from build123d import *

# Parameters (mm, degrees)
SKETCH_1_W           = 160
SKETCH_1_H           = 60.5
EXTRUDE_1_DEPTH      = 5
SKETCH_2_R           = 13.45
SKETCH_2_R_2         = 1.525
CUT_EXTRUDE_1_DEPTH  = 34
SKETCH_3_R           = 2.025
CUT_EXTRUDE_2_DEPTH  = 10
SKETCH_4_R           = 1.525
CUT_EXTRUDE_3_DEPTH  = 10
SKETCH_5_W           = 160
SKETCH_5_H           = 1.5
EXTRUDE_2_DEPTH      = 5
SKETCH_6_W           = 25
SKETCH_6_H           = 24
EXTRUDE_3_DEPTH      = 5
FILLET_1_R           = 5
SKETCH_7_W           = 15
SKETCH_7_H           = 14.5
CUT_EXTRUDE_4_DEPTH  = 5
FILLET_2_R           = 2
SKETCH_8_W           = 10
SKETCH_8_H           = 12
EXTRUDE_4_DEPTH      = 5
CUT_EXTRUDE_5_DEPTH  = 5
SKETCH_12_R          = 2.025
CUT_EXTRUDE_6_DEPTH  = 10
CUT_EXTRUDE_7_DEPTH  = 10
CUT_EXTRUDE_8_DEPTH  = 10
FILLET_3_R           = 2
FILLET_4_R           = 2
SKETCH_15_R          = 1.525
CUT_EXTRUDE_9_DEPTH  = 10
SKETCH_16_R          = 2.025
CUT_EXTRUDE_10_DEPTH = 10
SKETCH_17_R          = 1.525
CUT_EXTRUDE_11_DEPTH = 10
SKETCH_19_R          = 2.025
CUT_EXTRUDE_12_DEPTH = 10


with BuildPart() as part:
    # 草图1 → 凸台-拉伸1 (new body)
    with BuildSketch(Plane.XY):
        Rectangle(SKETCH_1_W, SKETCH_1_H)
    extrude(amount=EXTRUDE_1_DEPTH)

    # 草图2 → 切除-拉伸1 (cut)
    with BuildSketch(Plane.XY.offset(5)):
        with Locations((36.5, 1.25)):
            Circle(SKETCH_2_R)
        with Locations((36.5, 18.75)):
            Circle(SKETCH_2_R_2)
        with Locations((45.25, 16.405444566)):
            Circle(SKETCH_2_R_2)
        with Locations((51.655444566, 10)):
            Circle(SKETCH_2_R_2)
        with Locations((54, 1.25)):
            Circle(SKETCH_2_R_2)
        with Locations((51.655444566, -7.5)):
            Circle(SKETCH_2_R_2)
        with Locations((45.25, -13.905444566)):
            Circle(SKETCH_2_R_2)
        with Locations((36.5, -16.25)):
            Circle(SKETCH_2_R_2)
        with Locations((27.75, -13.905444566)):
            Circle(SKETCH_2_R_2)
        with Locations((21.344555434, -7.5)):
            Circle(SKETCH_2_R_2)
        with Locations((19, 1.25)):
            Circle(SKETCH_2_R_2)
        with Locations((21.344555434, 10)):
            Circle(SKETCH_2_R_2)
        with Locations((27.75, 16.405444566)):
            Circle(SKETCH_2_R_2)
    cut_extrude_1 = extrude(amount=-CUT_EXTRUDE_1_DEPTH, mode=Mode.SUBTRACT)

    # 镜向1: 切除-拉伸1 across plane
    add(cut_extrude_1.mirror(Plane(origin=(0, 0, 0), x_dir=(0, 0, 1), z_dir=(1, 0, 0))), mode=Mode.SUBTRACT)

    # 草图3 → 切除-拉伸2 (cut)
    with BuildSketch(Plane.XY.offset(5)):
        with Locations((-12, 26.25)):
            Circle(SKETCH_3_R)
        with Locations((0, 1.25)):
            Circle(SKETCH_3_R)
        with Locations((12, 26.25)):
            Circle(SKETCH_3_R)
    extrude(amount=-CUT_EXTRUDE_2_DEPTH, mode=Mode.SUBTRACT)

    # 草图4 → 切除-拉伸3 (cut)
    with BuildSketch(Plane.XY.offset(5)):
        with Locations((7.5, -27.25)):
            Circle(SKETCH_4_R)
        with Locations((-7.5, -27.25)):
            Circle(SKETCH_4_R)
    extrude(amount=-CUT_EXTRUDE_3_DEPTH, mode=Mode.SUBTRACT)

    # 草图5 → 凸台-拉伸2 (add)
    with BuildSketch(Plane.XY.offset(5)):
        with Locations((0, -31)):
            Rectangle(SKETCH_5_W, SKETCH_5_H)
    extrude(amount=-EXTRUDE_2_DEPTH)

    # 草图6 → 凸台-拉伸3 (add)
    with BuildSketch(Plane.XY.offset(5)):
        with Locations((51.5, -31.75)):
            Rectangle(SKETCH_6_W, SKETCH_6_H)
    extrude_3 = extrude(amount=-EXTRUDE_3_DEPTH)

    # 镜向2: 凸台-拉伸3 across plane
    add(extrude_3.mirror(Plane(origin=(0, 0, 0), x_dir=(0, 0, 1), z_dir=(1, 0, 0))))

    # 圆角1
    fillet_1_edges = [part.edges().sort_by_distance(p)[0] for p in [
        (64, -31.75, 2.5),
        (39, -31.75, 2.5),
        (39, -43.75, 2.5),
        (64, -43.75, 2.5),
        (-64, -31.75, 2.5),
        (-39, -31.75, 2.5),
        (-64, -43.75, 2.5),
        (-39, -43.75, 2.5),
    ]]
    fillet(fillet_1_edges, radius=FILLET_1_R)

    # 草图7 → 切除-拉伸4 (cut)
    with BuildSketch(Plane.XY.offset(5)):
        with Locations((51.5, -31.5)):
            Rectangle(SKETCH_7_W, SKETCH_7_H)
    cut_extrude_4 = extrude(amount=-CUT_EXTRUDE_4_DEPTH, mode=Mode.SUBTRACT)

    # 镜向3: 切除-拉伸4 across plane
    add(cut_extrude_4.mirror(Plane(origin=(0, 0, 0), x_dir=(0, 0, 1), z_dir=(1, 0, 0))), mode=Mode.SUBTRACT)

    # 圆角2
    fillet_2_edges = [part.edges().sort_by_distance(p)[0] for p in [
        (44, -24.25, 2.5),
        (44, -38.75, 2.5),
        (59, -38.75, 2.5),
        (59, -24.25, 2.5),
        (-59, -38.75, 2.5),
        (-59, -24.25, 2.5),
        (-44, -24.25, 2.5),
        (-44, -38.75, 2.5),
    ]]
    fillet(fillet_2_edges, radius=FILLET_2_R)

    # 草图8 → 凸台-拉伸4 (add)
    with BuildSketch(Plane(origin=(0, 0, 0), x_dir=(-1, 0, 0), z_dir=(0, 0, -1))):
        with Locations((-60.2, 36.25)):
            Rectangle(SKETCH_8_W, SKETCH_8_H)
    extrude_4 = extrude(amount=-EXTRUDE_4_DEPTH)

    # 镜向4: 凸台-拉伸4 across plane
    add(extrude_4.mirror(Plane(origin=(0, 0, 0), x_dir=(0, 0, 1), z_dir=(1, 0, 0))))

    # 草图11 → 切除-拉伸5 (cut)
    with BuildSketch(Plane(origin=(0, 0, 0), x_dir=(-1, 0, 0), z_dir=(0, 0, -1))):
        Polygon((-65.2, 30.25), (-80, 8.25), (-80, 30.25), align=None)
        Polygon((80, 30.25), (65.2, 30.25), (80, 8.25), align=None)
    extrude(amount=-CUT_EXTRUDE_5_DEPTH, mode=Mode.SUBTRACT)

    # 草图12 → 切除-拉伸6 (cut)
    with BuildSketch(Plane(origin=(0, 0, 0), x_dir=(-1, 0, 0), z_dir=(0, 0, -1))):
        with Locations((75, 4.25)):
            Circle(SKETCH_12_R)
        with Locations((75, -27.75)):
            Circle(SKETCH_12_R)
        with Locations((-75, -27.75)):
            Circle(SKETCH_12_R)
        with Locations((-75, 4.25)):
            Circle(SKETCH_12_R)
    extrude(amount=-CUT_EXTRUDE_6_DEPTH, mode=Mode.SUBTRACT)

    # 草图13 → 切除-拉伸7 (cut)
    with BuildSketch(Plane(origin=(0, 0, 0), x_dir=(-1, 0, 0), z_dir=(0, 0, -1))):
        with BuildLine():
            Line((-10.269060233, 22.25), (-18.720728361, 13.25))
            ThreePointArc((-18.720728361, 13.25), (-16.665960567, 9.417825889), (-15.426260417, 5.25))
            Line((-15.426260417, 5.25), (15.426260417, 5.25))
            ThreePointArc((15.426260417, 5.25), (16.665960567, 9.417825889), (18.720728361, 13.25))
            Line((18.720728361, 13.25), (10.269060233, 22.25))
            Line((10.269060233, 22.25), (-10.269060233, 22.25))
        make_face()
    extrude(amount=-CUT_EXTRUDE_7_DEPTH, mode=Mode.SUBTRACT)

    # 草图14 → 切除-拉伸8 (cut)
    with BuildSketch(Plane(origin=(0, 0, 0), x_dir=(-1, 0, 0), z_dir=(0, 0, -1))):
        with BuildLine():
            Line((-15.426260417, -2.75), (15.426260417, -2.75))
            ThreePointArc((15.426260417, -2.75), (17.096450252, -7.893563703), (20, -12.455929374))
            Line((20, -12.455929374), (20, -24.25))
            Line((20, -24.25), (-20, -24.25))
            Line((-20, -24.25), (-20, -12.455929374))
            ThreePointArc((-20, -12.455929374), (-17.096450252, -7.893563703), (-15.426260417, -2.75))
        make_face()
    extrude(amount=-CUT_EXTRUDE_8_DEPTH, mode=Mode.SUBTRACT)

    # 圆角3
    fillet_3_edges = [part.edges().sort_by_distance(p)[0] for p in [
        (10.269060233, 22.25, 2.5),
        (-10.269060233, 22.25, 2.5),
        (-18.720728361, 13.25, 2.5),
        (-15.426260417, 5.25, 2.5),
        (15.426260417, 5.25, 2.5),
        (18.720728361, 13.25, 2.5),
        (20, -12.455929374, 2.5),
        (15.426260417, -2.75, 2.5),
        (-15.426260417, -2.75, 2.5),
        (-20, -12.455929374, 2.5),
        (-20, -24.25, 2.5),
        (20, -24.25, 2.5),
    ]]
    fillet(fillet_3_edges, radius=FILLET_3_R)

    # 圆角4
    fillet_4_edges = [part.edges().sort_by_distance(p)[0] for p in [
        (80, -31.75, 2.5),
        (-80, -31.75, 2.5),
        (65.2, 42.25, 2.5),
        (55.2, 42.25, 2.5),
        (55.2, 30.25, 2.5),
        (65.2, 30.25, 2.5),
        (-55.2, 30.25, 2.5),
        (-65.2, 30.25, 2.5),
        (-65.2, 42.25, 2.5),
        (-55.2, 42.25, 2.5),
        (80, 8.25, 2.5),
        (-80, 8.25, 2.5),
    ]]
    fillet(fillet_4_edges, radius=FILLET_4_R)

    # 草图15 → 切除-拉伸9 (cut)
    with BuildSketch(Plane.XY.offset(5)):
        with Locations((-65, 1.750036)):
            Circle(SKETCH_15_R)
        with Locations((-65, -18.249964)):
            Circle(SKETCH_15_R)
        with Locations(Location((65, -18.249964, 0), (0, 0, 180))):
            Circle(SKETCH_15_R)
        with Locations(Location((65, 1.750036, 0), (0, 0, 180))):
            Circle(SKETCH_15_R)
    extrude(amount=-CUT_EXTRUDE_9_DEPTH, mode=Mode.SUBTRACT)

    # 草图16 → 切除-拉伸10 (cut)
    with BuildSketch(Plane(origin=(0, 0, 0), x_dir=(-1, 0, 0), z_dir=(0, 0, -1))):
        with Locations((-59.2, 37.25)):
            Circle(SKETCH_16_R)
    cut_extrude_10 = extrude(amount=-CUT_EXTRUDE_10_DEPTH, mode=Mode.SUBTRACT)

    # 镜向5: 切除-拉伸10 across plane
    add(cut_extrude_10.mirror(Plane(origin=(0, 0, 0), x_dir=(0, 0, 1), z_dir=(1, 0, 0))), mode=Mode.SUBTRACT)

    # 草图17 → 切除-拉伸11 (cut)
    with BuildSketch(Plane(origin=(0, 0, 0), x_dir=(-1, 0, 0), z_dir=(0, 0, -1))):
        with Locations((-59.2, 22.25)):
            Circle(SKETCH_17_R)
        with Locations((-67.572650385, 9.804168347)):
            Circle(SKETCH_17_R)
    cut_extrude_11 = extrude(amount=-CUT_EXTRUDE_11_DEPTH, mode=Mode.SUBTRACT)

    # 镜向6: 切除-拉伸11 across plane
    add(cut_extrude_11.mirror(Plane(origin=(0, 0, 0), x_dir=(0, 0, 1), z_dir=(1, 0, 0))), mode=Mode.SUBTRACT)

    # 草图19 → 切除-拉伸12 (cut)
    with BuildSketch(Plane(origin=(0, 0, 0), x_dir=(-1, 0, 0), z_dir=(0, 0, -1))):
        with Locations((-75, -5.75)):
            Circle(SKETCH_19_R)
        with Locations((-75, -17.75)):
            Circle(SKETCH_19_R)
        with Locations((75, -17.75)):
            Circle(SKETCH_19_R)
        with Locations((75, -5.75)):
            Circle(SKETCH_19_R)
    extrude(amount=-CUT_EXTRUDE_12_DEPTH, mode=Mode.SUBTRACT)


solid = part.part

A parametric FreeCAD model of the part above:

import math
import FreeCAD as App
import Part
import Sketcher
from FreeCAD import Vector


def edges_at(feature, points):
    """Names of the edges that pass closest to the given points."""
    edges = feature.Shape.Edges
    near = lambda p: min(range(len(edges)), key=lambda i: edges[i].distToShape(Part.Vertex(*p))[0])
    return sorted({f"Edge{near(p) + 1}" for p in points})


def add_polygon(sketch, points):
    """Adds a closed chain of lines whose ends are joined by coincident constraints."""
    first, n = sketch.GeometryCount, len(points)
    for a, b in zip(points, points[1:] + points[:1]):
        sketch.addGeometry(Part.LineSegment(App.Vector(*a, 0), App.Vector(*b, 0)), False)
    for i in range(n):
        sketch.addConstraint(Sketcher.Constraint("Coincident", first + i, 2, first + (i + 1) % n, 1))

doc = App.newDocument("Part")
body = doc.addObject("PartDesign::Body", "Body")

# Sketch on XY plane
sketch1 = body.newObject("Sketcher::SketchObject", "Sketch")
sketch1.AttachmentSupport = (doc.getObject("XY_Plane"), [""])
sketch1.MapMode = "FlatFace"
add_polygon(sketch1, [(-80, 30), (-80, -30), (80, -30), (80, 30)])  # lines 0-3
sketch1.addConstraint([
    Sketcher.Constraint("Vertical", 0),
    Sketcher.Constraint("Horizontal", 1),
    Sketcher.Constraint("Vertical", 2),
    Sketcher.Constraint("Horizontal", 3),
    Sketcher.Constraint("Symmetric", 0, 2, 2, 2, -1, 1),
    Sketcher.Constraint("DistanceX", 1, 1, 1, 2, 160.0),
    Sketcher.Constraint("DistanceY", 0, 2, 0, 1, 60.5),
])
pad1 = body.newObject("PartDesign::Pad", "Pad")
pad1.Profile = sketch1
pad1.Length = 5

# Sketch on XY plane
sketch2 = body.newObject("Sketcher::SketchObject", "Sketch001")
sketch2.AttachmentSupport = (doc.getObject("XY_Plane"), [""])
sketch2.MapMode = "FlatFace"
sketch2.AttachmentOffset = App.Placement(Vector(0, 0, 5), App.Rotation())
sketch2.addGeometry([
    Part.Circle(Vector(36.5, 1.2, 0), Vector(0, 0, 1), 13.4),  # 0
    Part.Circle(Vector(36.5, 18.8, 0), Vector(0, 0, 1), 1.5),  # 1
    Part.Circle(Vector(45.2, 16.4, 0), Vector(0, 0, 1), 1.5),  # 2
    Part.Circle(Vector(51.7, 10, 0), Vector(0, 0, 1), 1.5),  # 3
    Part.Circle(Vector(54, 1.2, 0), Vector(0, 0, 1), 1.5),  # 4
    Part.Circle(Vector(51.7, -7.5, 0), Vector(0, 0, 1), 1.5),  # 5
    Part.Circle(Vector(45.2, -13.9, 0), Vector(0, 0, 1), 1.5),  # 6
    Part.Circle(Vector(36.5, -16.2, 0), Vector(0, 0, 1), 1.5),  # 7
    Part.Circle(Vector(27.8, -13.9, 0), Vector(0, 0, 1), 1.5),  # 8
    Part.Circle(Vector(21.3, -7.5, 0), Vector(0, 0, 1), 1.5),  # 9
    Part.Circle(Vector(19, 1.2, 0), Vector(0, 0, 1), 1.5),  # 10
    Part.Circle(Vector(21.3, 10, 0), Vector(0, 0, 1), 1.5),  # 11
    Part.Circle(Vector(27.8, 16.4, 0), Vector(0, 0, 1), 1.5),  # 12
], False)
sketch2.addConstraint([
    Sketcher.Constraint("Equal", 1, 2),
    Sketcher.Constraint("Equal", 2, 3),
    Sketcher.Constraint("Equal", 3, 4),
    Sketcher.Constraint("Equal", 4, 5),
    Sketcher.Constraint("Equal", 5, 6),
    Sketcher.Constraint("Equal", 6, 7),
    Sketcher.Constraint("Equal", 7, 8),
    Sketcher.Constraint("Equal", 8, 9),
    Sketcher.Constraint("Equal", 9, 10),
    Sketcher.Constraint("Equal", 10, 11),
    Sketcher.Constraint("Equal", 11, 12),
    Sketcher.Constraint("Horizontal", 0, 3, 4, 3),
    Sketcher.Constraint("Horizontal", 6, 3, 8, 3),
    Sketcher.Constraint("Horizontal", 5, 3, 9, 3),
    Sketcher.Constraint("Horizontal", 4, 3, 10, 3),
    Sketcher.Constraint("Horizontal", 3, 3, 11, 3),
    Sketcher.Constraint("Horizontal", 2, 3, 12, 3),
    Sketcher.Constraint("Vertical", 0, 3, 1, 3),
    Sketcher.Constraint("Vertical", 3, 3, 5, 3),
    Sketcher.Constraint("Vertical", 2, 3, 6, 3),
    Sketcher.Constraint("Vertical", 1, 3, 7, 3),
    Sketcher.Constraint("Vertical", 9, 3, 11, 3),
    Sketcher.Constraint("Vertical", 8, 3, 12, 3),
    Sketcher.Constraint("Diameter", 0, 26.9),
    Sketcher.Constraint("Diameter", 1, 3.05),
    Sketcher.Constraint("DistanceY", -1, 1, 3, 3, 10.0),
    Sketcher.Constraint("DistanceX", -1, 1, 4, 3, 54.0),
    Sketcher.Constraint("DistanceX", -1, 1, 10, 3, 19.0),
    Sketcher.Constraint("DistanceX", -1, 1, 0, 3, 36.5),
    Sketcher.Constraint("DistanceY", 5, 3, -1, 1, 7.5),
    Sketcher.Constraint("DistanceY", 0, 3, 1, 3, 17.5),
    Sketcher.Constraint("DistanceY", 7, 3, 0, 3, 17.5),
    Sketcher.Constraint("DistanceX", 8, 3, 6, 3, 17.5),
    Sketcher.Constraint("DistanceY", -1, 1, 0, 3, 1.25),
    Sketcher.Constraint("DistanceX", -1, 1, 2, 3, 45.25),
    Sketcher.Constraint("DistanceY", 6, 3, 2, 3, 30.310889),
    Sketcher.Constraint("DistanceX", 9, 3, 5, 3, 30.310889),
    Sketcher.Constraint("DistanceY", -1, 1, 2, 3, 16.405445),
    Sketcher.Constraint("DistanceX", -1, 1, 3, 3, 51.655445),
])
pocket1 = body.newObject("PartDesign::Pocket", "Pocket")
pocket1.Profile = sketch2
pocket1.Length = 34
doc.recompute()

mirrored = body.newObject("PartDesign::Mirrored", "Mirrored")
mirrored.Originals = [pocket1]
mirrored.MirrorPlane = (doc.getObject("YZ_Plane"), [""])
body.Tip = mirrored

# Sketch on XY plane
sketch3 = body.newObject("Sketcher::SketchObject", "Sketch002")
sketch3.AttachmentSupport = (doc.getObject("XY_Plane"), [""])
sketch3.MapMode = "FlatFace"
sketch3.AttachmentOffset = App.Placement(Vector(0, 0, 5), App.Rotation())
sketch3.addGeometry([
    Part.Circle(Vector(-12, 26.2, 0), Vector(0, 0, 1), 2),
    Part.Circle(Vector(0, 1.2, 0), Vector(0, 0, 1), 2),
    Part.Circle(Vector(12, 26.2, 0), Vector(0, 0, 1), 2),
], False)
sketch3.addConstraint([
    Sketcher.Constraint("Equal", 0, 1),
    Sketcher.Constraint("Equal", 1, 2),
    Sketcher.Constraint("Symmetric", 0, 3, 2, 3, -2),
    Sketcher.Constraint("PointOnObject", 1, 3, -2),
    Sketcher.Constraint("Diameter", 0, 4.05),
    Sketcher.Constraint("DistanceX", 0, 3, -1, 1, 12.0),
    Sketcher.Constraint("DistanceY", 1, 3, 0, 3, 25.0),
    Sketcher.Constraint("DistanceY", -1, 1, 0, 3, 26.25),
])
pocket2 = body.newObject("PartDesign::Pocket", "Pocket001")
pocket2.Profile = sketch3
pocket2.Length = 10

# Sketch on XY plane
sketch4 = body.newObject("Sketcher::SketchObject", "Sketch003")
sketch4.AttachmentSupport = (doc.getObject("XY_Plane"), [""])
sketch4.MapMode = "FlatFace"
sketch4.AttachmentOffset = App.Placement(Vector(0, 0, 5), App.Rotation())
sketch4.addGeometry([
    Part.Circle(Vector(7.5, -27.2, 0), Vector(0, 0, 1), 1.5),
    Part.Circle(Vector(-7.5, -27.2, 0), Vector(0, 0, 1), 1.5),
], False)
sketch4.addConstraint([
    Sketcher.Constraint("Equal", 0, 1),
    Sketcher.Constraint("Symmetric", 0, 3, 1, 3, -2),
    Sketcher.Constraint("Diameter", 0, 3.05),
    Sketcher.Constraint("DistanceX", 1, 3, 0, 3, 15.0),
    Sketcher.Constraint("DistanceY", 0, 3, -1, 1, 27.25),
])
pocket3 = body.newObject("PartDesign::Pocket", "Pocket002")
pocket3.Profile = sketch4
pocket3.Length = 10

# Sketch on XY plane
sketch5 = body.newObject("Sketcher::SketchObject", "Sketch004")
sketch5.AttachmentSupport = (doc.getObject("XY_Plane"), [""])
sketch5.MapMode = "FlatFace"
sketch5.AttachmentOffset = App.Placement(Vector(0, 0, 5), App.Rotation())
add_polygon(sketch5, [(-80, -30.2), (-80, -31.8), (80, -31.8), (80, -30.2)])  # lines 0-3
sketch5.addConstraint([
    Sketcher.Constraint("Vertical", 0),
    Sketcher.Constraint("Horizontal", 1),
    Sketcher.Constraint("Vertical", 2),
    Sketcher.Constraint("Horizontal", 3),
    Sketcher.Constraint("DistanceX", 1, 1, 1, 2, 160.0),
    Sketcher.Constraint("DistanceY", 0, 2, 0, 1, 1.5),
    Sketcher.Constraint("DistanceX", 0, 2, -1, 1, 80.0),
    Sketcher.Constraint("DistanceY", 0, 2, -1, 1, 31.75),
])
pad2 = body.newObject("PartDesign::Pad", "Pad001")
pad2.Profile = sketch5
pad2.Length = 5
pad2.Reversed = True

# Sketch on XY plane
sketch6 = body.newObject("Sketcher::SketchObject", "Sketch005")
sketch6.AttachmentSupport = (doc.getObject("XY_Plane"), [""])
sketch6.MapMode = "FlatFace"
sketch6.AttachmentOffset = App.Placement(Vector(0, 0, 5), App.Rotation())
add_polygon(sketch6, [(39, -20), (39, -44), (64, -44), (64, -20)])  # lines 0-3
sketch6.addConstraint([
    Sketcher.Constraint("Vertical", 0),
    Sketcher.Constraint("Horizontal", 1),
    Sketcher.Constraint("Vertical", 2),
    Sketcher.Constraint("Horizontal", 3),
    Sketcher.Constraint("DistanceX", 1, 1, 1, 2, 25.0),
    Sketcher.Constraint("DistanceY", 0, 2, 0, 1, 24.0),
    Sketcher.Constraint("DistanceX", -1, 1, 0, 2, 39.0),
    Sketcher.Constraint("DistanceY", 0, 2, -1, 1, 43.75),
])
pad3 = body.newObject("PartDesign::Pad", "Pad002")
pad3.Profile = sketch6
pad3.Length = 5
pad3.Reversed = True
doc.recompute()

mirrored2 = body.newObject("PartDesign::Mirrored", "Mirrored001")
mirrored2.Originals = [pad3]
mirrored2.MirrorPlane = (doc.getObject("YZ_Plane"), [""])
body.Tip = mirrored2
doc.recompute()

fillet = body.newObject("PartDesign::Fillet", "Fillet")
fillet.Base = (mirrored2, edges_at(mirrored2, [
    (64, -31.75, 2.5),
    (39, -31.75, 2.5),
    (39, -43.75, 2.5),
    (64, -43.75, 2.5),
    (-64, -31.75, 2.5),
    (-39, -31.75, 2.5),
    (-64, -43.75, 2.5),
    (-39, -43.75, 2.5),
]))
fillet.Radius = 5

# Sketch on XY plane
sketch7 = body.newObject("Sketcher::SketchObject", "Sketch006")
sketch7.AttachmentSupport = (doc.getObject("XY_Plane"), [""])
sketch7.MapMode = "FlatFace"
sketch7.AttachmentOffset = App.Placement(Vector(0, 0, 5), App.Rotation())
add_polygon(sketch7, [(44, -24), (44, -39), (59, -39), (59, -24)])  # lines 0-3
sketch7.addConstraint([
    Sketcher.Constraint("Vertical", 0),
    Sketcher.Constraint("Horizontal", 1),
    Sketcher.Constraint("Vertical", 2),
    Sketcher.Constraint("Horizontal", 3),
    Sketcher.Constraint("DistanceX", 1, 1, 1, 2, 15.0),
    Sketcher.Constraint("DistanceY", 0, 2, 0, 1, 14.5),
    Sketcher.Constraint("DistanceX", -1, 1, 0, 2, 44.0),
    Sketcher.Constraint("DistanceY", 0, 2, -1, 1, 38.75),
])
pocket4 = body.newObject("PartDesign::Pocket", "Pocket003")
pocket4.Profile = sketch7
pocket4.Length = 5
doc.recompute()

mirrored3 = body.newObject("PartDesign::Mirrored", "Mirrored002")
mirrored3.Originals = [pocket4]
mirrored3.MirrorPlane = (doc.getObject("YZ_Plane"), [""])
body.Tip = mirrored3
doc.recompute()

fillet2 = body.newObject("PartDesign::Fillet", "Fillet001")
fillet2.Base = (mirrored3, edges_at(mirrored3, [
    (44, -24.25, 2.5),
    (44, -38.75, 2.5),
    (59, -38.75, 2.5),
    (59, -24.25, 2.5),
    (-59, -38.75, 2.5),
    (-59, -24.25, 2.5),
    (-44, -24.25, 2.5),
    (-44, -38.75, 2.5),
]))
fillet2.Radius = 2

# Sketch on XY plane
sketch8 = body.newObject("Sketcher::SketchObject", "Sketch007")
sketch8.AttachmentSupport = (doc.getObject("XY_Plane"), [""])
sketch8.MapMode = "FlatFace"
add_polygon(sketch8, [(65, 42), (65, 30), (55, 30), (55, 42)])  # lines 0-3
sketch8.addConstraint([
    Sketcher.Constraint("Vertical", 0),
    Sketcher.Constraint("Horizontal", 1),
    Sketcher.Constraint("Vertical", 2),
    Sketcher.Constraint("Horizontal", 3),
    Sketcher.Constraint("DistanceX", 1, 2, 1, 1, 10.0),
    Sketcher.Constraint("DistanceY", 0, 2, 0, 1, 12.0),
    Sketcher.Constraint("DistanceX", -1, 1, 0, 2, 65.2),
    Sketcher.Constraint("DistanceY", -1, 1, 0, 2, 30.25),
])
pad4 = body.newObject("PartDesign::Pad", "Pad003")
pad4.Profile = sketch8
pad4.Length = 5
doc.recompute()

mirrored4 = body.newObject("PartDesign::Mirrored", "Mirrored003")
mirrored4.Originals = [pad4]
mirrored4.MirrorPlane = (doc.getObject("YZ_Plane"), [""])
body.Tip = mirrored4

# Sketch on XY plane
sketch9 = body.newObject("Sketcher::SketchObject", "Sketch008")
sketch9.AttachmentSupport = (doc.getObject("XY_Plane"), [""])
sketch9.MapMode = "FlatFace"
add_polygon(sketch9, [(80, 8), (65, 30), (80, 30)])  # lines 0-2
add_polygon(sketch9, [(-80, 30), (-65, 30), (-80, 8)])  # lines 3-5
sketch9.addConstraint([
    Sketcher.Constraint("Horizontal", 1),
    Sketcher.Constraint("Vertical", 2),
    Sketcher.Constraint("Horizontal", 3),
    Sketcher.Constraint("Vertical", 5),
    Sketcher.Constraint("Symmetric", 0, 2, 3, 2, -2),
    Sketcher.Constraint("Symmetric", 2, 2, 4, 2, -2),
    Sketcher.Constraint("DistanceY", 2, 2, 2, 1, 22.0),
    Sketcher.Constraint("DistanceX", 1, 1, 1, 2, 14.8),
    Sketcher.Constraint("DistanceX", -1, 1, 1, 2, 80.0),
    Sketcher.Constraint("DistanceY", -1, 1, 0, 2, 30.25),
])
pocket5 = body.newObject("PartDesign::Pocket", "Pocket004")
pocket5.Profile = sketch9
pocket5.Length = 5
pocket5.Reversed = True

# Sketch on XY plane
sketch10 = body.newObject("Sketcher::SketchObject", "Sketch009")
sketch10.AttachmentSupport = (doc.getObject("XY_Plane"), [""])
sketch10.MapMode = "FlatFace"
sketch10.addGeometry([
    Part.Circle(Vector(-75, 4.2, 0), Vector(0, 0, 1), 2),
    Part.Circle(Vector(-75, -27.8, 0), Vector(0, 0, 1), 2),
    Part.Circle(Vector(75, -27.8, 0), Vector(0, 0, 1), 2),
    Part.Circle(Vector(75, 4.2, 0), Vector(0, 0, 1), 2),
], False)
sketch10.addConstraint([
    Sketcher.Constraint("Equal", 0, 1),
    Sketcher.Constraint("Equal", 1, 2),
    Sketcher.Constraint("Equal", 2, 3),
    Sketcher.Constraint("Symmetric", 1, 3, 2, 3, -2),
    Sketcher.Constraint("Symmetric", 0, 3, 3, 3, -2),
    Sketcher.Constraint("Vertical", 0, 3, 1, 3),
    Sketcher.Constraint("Diameter", 0, 4.05),
    Sketcher.Constraint("DistanceX", 0, 3, -1, 1, 75.0),
    Sketcher.Constraint("DistanceY", 1, 3, 0, 3, 32.0),
    Sketcher.Constraint("DistanceY", -1, 1, 0, 3, 4.25),
])
pocket6 = body.newObject("PartDesign::Pocket", "Pocket005")
pocket6.Profile = sketch10
pocket6.Length = 10
pocket6.Reversed = True

# Sketch on XY plane
sketch11 = body.newObject("Sketcher::SketchObject", "Sketch010")
sketch11.AttachmentSupport = (doc.getObject("XY_Plane"), [""])
sketch11.MapMode = "FlatFace"
sketch11.addGeometry([
    Part.LineSegment(Vector(10, 22, 0), Vector(19, 13, 0)),  # 0
    Part.ArcOfCircle(Part.Circle(Vector(37, 1, 0), Vector(0, 0, 1), 21), math.radians(146), math.radians(169)),  # 1
    Part.LineSegment(Vector(15, 5, 0), Vector(-15, 5, 0)),  # 2
    Part.ArcOfCircle(Part.Circle(Vector(-37, 1, 0), Vector(0, 0, 1), 21), math.radians(11), math.radians(34)),  # 3
    Part.LineSegment(Vector(-19, 13, 0), Vector(-10, 22, 0)),  # 4
    Part.LineSegment(Vector(-10, 22, 0), Vector(10, 22, 0)),  # 5
], False)
sketch11.addConstraint([
    Sketcher.Constraint("Coincident", 0, 2, 1, 1),
    Sketcher.Constraint("Coincident", 1, 2, 2, 1),
    Sketcher.Constraint("Coincident", 2, 2, 3, 1),
    Sketcher.Constraint("Coincident", 3, 2, 4, 1),
    Sketcher.Constraint("Coincident", 4, 2, 5, 1),
    Sketcher.Constraint("Coincident", 5, 2, 0, 1),
    Sketcher.Constraint("Horizontal", 2),
    Sketcher.Constraint("Horizontal", 5),
    Sketcher.Constraint("Equal", 1, 3),
    Sketcher.Constraint("Symmetric", 1, 3, 3, 3, -2),
    Sketcher.Constraint("Horizontal", 0, 2, 3, 2),
    Sketcher.Constraint("Equal", 0, 4),
    Sketcher.Constraint("Radius", 1, 21.45),
    Sketcher.Constraint("DistanceX", 3, 3, 1, 3, 73.0),
    Sketcher.Constraint("DistanceY", 1, 3, 0, 2, 12.0),
    Sketcher.Constraint("DistanceY", 1, 2, 0, 2, 8.0),
    Sketcher.Constraint("DistanceY", 3, 2, 4, 2, 9.0),
    Sketcher.Constraint("DistanceY", -1, 1, 1, 3, 1.25),
    Sketcher.Constraint("DistanceX", 5, 1, 5, 2, 20.53812),
])
pocket7 = body.newObject("PartDesign::Pocket", "Pocket006")
pocket7.Profile = sketch11
pocket7.Length = 10
pocket7.Reversed = True

# Sketch on XY plane
sketch12 = body.newObject("Sketcher::SketchObject", "Sketch011")
sketch12.AttachmentSupport = (doc.getObject("XY_Plane"), [""])
sketch12.MapMode = "FlatFace"
sketch12.addGeometry([
    Part.LineSegment(Vector(-15, -3, 0), Vector(15, -3, 0)),  # 0
    Part.ArcOfCircle(Part.Circle(Vector(36, 1, 0), Vector(0, 0, 1), 21), math.radians(-169), math.radians(-140)),  # 1
    Part.LineSegment(Vector(20, -12, 0), Vector(20, -24, 0)),  # 2
    Part.LineSegment(Vector(20, -24, 0), Vector(-20, -24, 0)),  # 3
    Part.LineSegment(Vector(-20, -24, 0), Vector(-20, -12, 0)),  # 4
    Part.ArcOfCircle(Part.Circle(Vector(-36, 1, 0), Vector(0, 0, 1), 21), math.radians(-40), math.radians(-11)),  # 5
], False)
sketch12.addConstraint([
    Sketcher.Constraint("Coincident", 0, 2, 1, 1),
    Sketcher.Constraint("Coincident", 1, 2, 2, 1),
    Sketcher.Constraint("Coincident", 2, 2, 3, 1),
    Sketcher.Constraint("Coincident", 3, 2, 4, 1),
    Sketcher.Constraint("Coincident", 4, 2, 5, 1),
    Sketcher.Constraint("Coincident", 5, 2, 0, 1),
    Sketcher.Constraint("Horizontal", 0),
    Sketcher.Constraint("Vertical", 2),
    Sketcher.Constraint("Horizontal", 3),
    Sketcher.Constraint("Vertical", 4),
    Sketcher.Constraint("Equal", 1, 5),
    Sketcher.Constraint("Symmetric", 1, 3, 5, 3, -2),
    Sketcher.Constraint("Horizontal", 1, 2, 4, 2),
    Sketcher.Constraint("DistanceX", 3, 2, 3, 1, 40.0),
    Sketcher.Constraint("Radius", 1, 21.45),
    Sketcher.Constraint("DistanceX", 5, 3, 1, 3, 73.0),
    Sketcher.Constraint("DistanceY", 0, 2, 1, 3, 4.0),
    Sketcher.Constraint("DistanceY", 2, 2, 0, 2, 21.5),
    Sketcher.Constraint("DistanceY", -1, 1, 1, 3, 1.25),
])
pocket8 = body.newObject("PartDesign::Pocket", "Pocket007")
pocket8.Profile = sketch12
pocket8.Length = 10
pocket8.Reversed = True
doc.recompute()

fillet3 = body.newObject("PartDesign::Fillet", "Fillet002")
fillet3.Base = (pocket8, edges_at(pocket8, [
    (10.269, 22.25, 2.5),
    (-10.269, 22.25, 2.5),
    (-18.721, 13.25, 2.5),
    (-15.426, 5.25, 2.5),
    (15.426, 5.25, 2.5),
    (18.721, 13.25, 2.5),
    (20, -12.456, 2.5),
    (15.426, -2.75, 2.5),
    (-15.426, -2.75, 2.5),
    (-20, -12.456, 2.5),
    (-20, -24.25, 2.5),
    (20, -24.25, 2.5),
]))
fillet3.Radius = 2
doc.recompute()

fillet4 = body.newObject("PartDesign::Fillet", "Fillet003")
fillet4.Base = (fillet3, edges_at(fillet3, [
    (80, -31.75, 2.5),
    (-80, -31.75, 2.5),
    (65.2, 42.25, 2.5),
    (55.2, 42.25, 2.5),
    (55.2, 30.25, 2.5),
    (65.2, 30.25, 2.5),
    (-55.2, 30.25, 2.5),
    (-65.2, 30.25, 2.5),
    (-65.2, 42.25, 2.5),
    (-55.2, 42.25, 2.5),
    (80, 8.25, 2.5),
    (-80, 8.25, 2.5),
]))
fillet4.Radius = 2

# Sketch on XY plane
sketch13 = body.newObject("Sketcher::SketchObject", "Sketch012")
sketch13.AttachmentSupport = (doc.getObject("XY_Plane"), [""])
sketch13.MapMode = "FlatFace"
sketch13.AttachmentOffset = App.Placement(Vector(0, 0, 5), App.Rotation())
sketch13.addGeometry([
    Part.Circle(Vector(-65, 1.8, 0), Vector(0, 0, 1), 1.5),
    Part.Circle(Vector(-65, -18.2, 0), Vector(0, 0, 1), 1.5),
    Part.Circle(Vector(65, -18.2, 0), Vector(0, 0, 1), 1.5),
    Part.Circle(Vector(65, 1.8, 0), Vector(0, 0, 1), 1.5),
], False)
sketch13.addConstraint([
    Sketcher.Constraint("Equal", 0, 1),
    Sketcher.Constraint("Equal", 1, 2),
    Sketcher.Constraint("Equal", 2, 3),
    Sketcher.Constraint("Symmetric", 1, 3, 2, 3, -2),
    Sketcher.Constraint("Symmetric", 0, 3, 3, 3, -2),
    Sketcher.Constraint("Vertical", 0, 3, 1, 3),
    Sketcher.Constraint("Diameter", 0, 3.05),
    Sketcher.Constraint("DistanceX", 0, 3, -1, 1, 65.0),
    Sketcher.Constraint("DistanceY", 1, 3, 0, 3, 20.0),
    Sketcher.Constraint("DistanceY", -1, 1, 0, 3, 1.750036),
])
pocket9 = body.newObject("PartDesign::Pocket", "Pocket008")
pocket9.Profile = sketch13
pocket9.Length = 10

# Sketch on XY plane
sketch14 = body.newObject("Sketcher::SketchObject", "Sketch013")
sketch14.AttachmentSupport = (doc.getObject("XY_Plane"), [""])
sketch14.MapMode = "FlatFace"
sketch14.addGeometry(Part.Circle(Vector(59.2, 37.2, 0), Vector(0, 0, 1), 2), False)
sketch14.addConstraint([
    Sketcher.Constraint("Diameter", 0, 4.05),
    Sketcher.Constraint("DistanceX", -1, 1, 0, 3, 59.2),
    Sketcher.Constraint("DistanceY", -1, 1, 0, 3, 37.25),
])
pocket10 = body.newObject("PartDesign::Pocket", "Pocket009")
pocket10.Profile = sketch14
pocket10.Length = 10
pocket10.Reversed = True
doc.recompute()

mirrored5 = body.newObject("PartDesign::Mirrored", "Mirrored004")
mirrored5.Originals = [pocket10]
mirrored5.MirrorPlane = (doc.getObject("YZ_Plane"), [""])
body.Tip = mirrored5

# Sketch on XY plane
sketch15 = body.newObject("Sketcher::SketchObject", "Sketch014")
sketch15.AttachmentSupport = (doc.getObject("XY_Plane"), [""])
sketch15.MapMode = "FlatFace"
sketch15.addGeometry([
    Part.Circle(Vector(59.2, 22.2, 0), Vector(0, 0, 1), 1.5),
    Part.Circle(Vector(67.6, 9.8, 0), Vector(0, 0, 1), 1.5),
], False)
sketch15.addConstraint([
    Sketcher.Constraint("Equal", 0, 1),
    Sketcher.Constraint("Diameter", 0, 3.05),
    Sketcher.Constraint("DistanceX", -1, 1, 0, 3, 59.2),
    Sketcher.Constraint("DistanceY", -1, 1, 0, 3, 22.25),
    Sketcher.Constraint("DistanceX", -1, 1, 1, 3, 67.57265),
    Sketcher.Constraint("DistanceY", -1, 1, 1, 3, 9.804168),
])
pocket11 = body.newObject("PartDesign::Pocket", "Pocket010")
pocket11.Profile = sketch15
pocket11.Length = 10
pocket11.Reversed = True
doc.recompute()

mirrored6 = body.newObject("PartDesign::Mirrored", "Mirrored005")
mirrored6.Originals = [pocket11]
mirrored6.MirrorPlane = (doc.getObject("YZ_Plane"), [""])
body.Tip = mirrored6

# Sketch on XY plane
sketch16 = body.newObject("Sketcher::SketchObject", "Sketch015")
sketch16.AttachmentSupport = (doc.getObject("XY_Plane"), [""])
sketch16.MapMode = "FlatFace"
sketch16.addGeometry([
    Part.Circle(Vector(75, -5.8, 0), Vector(0, 0, 1), 2),
    Part.Circle(Vector(75, -17.8, 0), Vector(0, 0, 1), 2),
    Part.Circle(Vector(-75, -17.8, 0), Vector(0, 0, 1), 2),
    Part.Circle(Vector(-75, -5.8, 0), Vector(0, 0, 1), 2),
], False)
sketch16.addConstraint([
    Sketcher.Constraint("Equal", 0, 1),
    Sketcher.Constraint("Equal", 1, 2),
    Sketcher.Constraint("Equal", 2, 3),
    Sketcher.Constraint("Symmetric", 1, 3, 2, 3, -2),
    Sketcher.Constraint("Symmetric", 0, 3, 3, 3, -2),
    Sketcher.Constraint("Vertical", 0, 3, 1, 3),
    Sketcher.Constraint("Diameter", 0, 4.05),
    Sketcher.Constraint("DistanceX", -1, 1, 0, 3, 75.0),
    Sketcher.Constraint("DistanceY", 1, 3, 0, 3, 12.0),
    Sketcher.Constraint("DistanceY", 0, 3, -1, 1, 5.75),
])
pocket12 = body.newObject("PartDesign::Pocket", "Pocket011")
pocket12.Profile = sketch16
pocket12.Length = 10
pocket12.Reversed = True

doc.recompute()
